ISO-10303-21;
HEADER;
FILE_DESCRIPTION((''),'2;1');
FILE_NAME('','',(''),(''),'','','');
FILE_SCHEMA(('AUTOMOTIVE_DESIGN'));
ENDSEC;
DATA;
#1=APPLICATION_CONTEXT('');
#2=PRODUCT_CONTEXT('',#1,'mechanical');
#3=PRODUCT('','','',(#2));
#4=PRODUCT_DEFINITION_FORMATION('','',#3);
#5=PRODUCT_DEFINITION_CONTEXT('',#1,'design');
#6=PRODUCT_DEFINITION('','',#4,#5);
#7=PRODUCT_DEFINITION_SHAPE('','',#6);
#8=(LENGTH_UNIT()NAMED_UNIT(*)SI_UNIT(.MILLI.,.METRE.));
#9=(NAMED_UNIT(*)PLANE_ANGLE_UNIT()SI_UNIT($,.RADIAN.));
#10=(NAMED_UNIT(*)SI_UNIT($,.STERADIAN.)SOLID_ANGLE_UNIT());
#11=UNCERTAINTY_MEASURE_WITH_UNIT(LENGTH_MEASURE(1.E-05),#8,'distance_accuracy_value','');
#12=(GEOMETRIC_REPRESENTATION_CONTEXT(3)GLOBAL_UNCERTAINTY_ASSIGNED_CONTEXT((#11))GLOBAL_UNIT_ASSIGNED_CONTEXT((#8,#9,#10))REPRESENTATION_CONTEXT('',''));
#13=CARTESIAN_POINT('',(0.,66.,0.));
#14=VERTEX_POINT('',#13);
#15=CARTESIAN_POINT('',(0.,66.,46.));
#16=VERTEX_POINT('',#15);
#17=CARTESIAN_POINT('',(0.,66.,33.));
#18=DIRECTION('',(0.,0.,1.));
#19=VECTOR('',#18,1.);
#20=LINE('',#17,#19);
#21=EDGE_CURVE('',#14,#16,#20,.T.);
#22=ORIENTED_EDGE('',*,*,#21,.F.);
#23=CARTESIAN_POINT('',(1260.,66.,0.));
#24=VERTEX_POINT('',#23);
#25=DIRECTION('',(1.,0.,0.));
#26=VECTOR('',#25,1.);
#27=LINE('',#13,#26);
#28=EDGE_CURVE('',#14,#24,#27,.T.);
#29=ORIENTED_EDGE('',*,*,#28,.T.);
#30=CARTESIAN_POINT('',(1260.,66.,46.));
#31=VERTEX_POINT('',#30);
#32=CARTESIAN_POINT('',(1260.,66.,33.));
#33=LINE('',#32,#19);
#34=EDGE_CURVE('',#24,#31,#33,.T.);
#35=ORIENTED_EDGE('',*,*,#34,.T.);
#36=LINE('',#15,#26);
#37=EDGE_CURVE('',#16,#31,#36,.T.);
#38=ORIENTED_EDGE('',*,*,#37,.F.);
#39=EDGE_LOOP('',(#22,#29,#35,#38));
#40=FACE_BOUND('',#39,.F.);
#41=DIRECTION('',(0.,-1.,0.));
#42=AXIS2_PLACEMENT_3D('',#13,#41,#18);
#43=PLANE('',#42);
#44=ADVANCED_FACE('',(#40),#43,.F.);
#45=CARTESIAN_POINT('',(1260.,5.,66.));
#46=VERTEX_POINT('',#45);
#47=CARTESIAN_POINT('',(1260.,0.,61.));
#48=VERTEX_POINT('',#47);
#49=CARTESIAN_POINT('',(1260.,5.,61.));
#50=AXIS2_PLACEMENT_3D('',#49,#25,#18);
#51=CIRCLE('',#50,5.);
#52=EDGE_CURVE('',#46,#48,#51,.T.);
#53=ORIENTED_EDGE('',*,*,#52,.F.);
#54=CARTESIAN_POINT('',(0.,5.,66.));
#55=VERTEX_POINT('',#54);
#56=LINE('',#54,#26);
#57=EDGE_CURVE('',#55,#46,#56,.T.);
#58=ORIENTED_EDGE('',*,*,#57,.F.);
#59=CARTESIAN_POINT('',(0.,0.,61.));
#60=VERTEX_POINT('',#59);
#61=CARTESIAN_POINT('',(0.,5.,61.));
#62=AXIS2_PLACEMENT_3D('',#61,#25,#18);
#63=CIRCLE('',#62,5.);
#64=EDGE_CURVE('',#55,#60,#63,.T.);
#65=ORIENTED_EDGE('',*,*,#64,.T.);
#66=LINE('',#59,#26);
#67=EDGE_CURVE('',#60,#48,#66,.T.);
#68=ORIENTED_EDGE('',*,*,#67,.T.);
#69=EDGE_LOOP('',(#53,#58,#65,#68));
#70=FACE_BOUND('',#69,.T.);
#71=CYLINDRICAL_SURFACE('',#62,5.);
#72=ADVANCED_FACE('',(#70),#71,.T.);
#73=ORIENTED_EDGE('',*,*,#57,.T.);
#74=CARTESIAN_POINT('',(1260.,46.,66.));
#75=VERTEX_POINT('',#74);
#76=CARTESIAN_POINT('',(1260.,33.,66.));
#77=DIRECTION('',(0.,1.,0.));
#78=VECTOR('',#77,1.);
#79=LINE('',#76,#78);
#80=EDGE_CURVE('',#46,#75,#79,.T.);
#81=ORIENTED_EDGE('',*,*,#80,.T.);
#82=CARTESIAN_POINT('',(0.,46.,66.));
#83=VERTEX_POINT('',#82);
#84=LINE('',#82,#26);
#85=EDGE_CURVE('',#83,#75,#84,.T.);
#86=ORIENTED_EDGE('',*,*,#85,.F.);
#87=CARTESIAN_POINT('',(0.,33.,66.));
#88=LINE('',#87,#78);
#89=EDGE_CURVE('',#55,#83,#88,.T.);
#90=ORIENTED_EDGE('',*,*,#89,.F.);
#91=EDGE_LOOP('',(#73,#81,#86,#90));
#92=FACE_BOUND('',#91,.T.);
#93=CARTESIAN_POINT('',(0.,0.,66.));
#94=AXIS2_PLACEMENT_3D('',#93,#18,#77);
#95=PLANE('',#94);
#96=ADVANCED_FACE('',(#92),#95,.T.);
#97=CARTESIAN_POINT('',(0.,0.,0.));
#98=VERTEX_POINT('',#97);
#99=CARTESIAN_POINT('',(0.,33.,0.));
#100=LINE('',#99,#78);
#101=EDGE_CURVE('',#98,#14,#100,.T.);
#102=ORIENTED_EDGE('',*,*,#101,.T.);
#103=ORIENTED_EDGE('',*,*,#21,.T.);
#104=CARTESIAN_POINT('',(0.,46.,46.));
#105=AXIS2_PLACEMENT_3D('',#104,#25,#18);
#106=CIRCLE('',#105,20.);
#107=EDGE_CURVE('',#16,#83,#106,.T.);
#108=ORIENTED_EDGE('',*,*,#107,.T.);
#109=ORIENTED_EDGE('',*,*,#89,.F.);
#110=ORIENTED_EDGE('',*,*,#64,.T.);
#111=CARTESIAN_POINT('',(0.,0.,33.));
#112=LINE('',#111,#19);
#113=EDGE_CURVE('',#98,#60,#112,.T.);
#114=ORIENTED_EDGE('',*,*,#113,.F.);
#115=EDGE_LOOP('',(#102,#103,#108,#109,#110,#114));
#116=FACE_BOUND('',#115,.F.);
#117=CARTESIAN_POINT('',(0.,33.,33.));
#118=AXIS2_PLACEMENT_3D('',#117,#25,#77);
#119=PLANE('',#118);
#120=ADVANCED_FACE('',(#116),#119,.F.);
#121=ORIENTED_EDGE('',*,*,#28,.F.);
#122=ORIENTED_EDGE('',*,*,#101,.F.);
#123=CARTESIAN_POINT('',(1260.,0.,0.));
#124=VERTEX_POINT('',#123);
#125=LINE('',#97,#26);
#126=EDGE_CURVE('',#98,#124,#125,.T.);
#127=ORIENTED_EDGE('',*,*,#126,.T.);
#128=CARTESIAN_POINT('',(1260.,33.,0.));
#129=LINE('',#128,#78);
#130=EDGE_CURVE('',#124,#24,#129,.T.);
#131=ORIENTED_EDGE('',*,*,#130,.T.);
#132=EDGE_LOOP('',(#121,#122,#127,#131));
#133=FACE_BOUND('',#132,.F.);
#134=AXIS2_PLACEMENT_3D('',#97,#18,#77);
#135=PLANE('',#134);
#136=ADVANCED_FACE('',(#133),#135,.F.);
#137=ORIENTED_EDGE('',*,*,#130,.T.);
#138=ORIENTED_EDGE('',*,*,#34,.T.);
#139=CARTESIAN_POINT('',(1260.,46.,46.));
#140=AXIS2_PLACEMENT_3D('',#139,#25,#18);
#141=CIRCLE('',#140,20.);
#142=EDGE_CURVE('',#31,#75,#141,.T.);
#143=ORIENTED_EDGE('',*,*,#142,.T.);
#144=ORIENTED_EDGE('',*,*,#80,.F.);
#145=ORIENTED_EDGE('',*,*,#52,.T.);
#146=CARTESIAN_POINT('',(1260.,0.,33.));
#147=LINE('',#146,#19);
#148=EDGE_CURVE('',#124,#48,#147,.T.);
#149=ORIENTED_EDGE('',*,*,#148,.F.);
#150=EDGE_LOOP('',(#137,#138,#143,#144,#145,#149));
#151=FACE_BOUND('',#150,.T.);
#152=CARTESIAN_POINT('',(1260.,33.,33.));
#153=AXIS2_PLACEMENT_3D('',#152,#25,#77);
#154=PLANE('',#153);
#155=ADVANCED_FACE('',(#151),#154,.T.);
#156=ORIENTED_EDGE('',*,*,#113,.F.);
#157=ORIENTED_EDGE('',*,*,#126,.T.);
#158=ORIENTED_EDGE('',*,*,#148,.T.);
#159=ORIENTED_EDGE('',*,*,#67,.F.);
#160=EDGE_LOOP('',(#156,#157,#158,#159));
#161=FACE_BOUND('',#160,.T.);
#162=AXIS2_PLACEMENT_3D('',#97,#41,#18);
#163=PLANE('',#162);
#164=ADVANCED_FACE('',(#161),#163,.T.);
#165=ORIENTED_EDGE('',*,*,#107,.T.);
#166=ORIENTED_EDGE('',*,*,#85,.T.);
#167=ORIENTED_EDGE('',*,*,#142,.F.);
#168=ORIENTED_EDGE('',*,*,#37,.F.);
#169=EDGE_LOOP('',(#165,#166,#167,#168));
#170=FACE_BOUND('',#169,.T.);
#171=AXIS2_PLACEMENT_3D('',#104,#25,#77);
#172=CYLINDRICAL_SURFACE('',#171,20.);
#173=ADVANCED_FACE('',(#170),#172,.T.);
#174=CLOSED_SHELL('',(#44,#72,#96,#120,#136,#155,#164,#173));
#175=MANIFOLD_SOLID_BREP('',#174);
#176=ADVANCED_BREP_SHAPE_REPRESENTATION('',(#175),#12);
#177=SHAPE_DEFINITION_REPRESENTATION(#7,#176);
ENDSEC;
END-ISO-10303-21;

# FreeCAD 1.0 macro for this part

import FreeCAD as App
import Part
import Sketcher


def edges_at(feature, points):
    """Names of the edges that pass closest to the given points."""
    edges = feature.Shape.Edges
    near = lambda p: min(range(len(edges)), key=lambda i: edges[i].distToShape(Part.Vertex(*p))[0])
    return sorted({f"Edge{near(p) + 1}" for p in points})

doc = App.newDocument("Part")
body = doc.addObject("PartDesign::Body", "Body")

# Sketch on YZ plane
sketch1 = body.newObject("Sketcher::SketchObject", "Sketch")
sketch1.AttachmentSupport = (doc.getObject("YZ_Plane"), [""])
sketch1.MapMode = "FlatFace"
sketch1.addGeometry([
    Part.LineSegment(App.Vector(0, 66, 0), App.Vector(0, 0, 0)),
    Part.LineSegment(App.Vector(0, 0, 0), App.Vector(66, 0, 0)),
    Part.LineSegment(App.Vector(66, 0, 0), App.Vector(66, 66, 0)),
    Part.LineSegment(App.Vector(66, 66, 0), App.Vector(0, 66, 0)),
], False)
sketch1.addConstraint([
    Sketcher.Constraint("Coincident", 0, 2, 1, 1),
    Sketcher.Constraint("Coincident", 1, 2, 2, 1),
    Sketcher.Constraint("Coincident", 2, 2, 3, 1),
    Sketcher.Constraint("Coincident", 3, 2, 0, 1),
    Sketcher.Constraint("Vertical", 0),
    Sketcher.Constraint("Horizontal", 1),
    Sketcher.Constraint("Vertical", 2),
    Sketcher.Constraint("Horizontal", 3),
    Sketcher.Constraint("Coincident", 0, 2, -1, 1),
    Sketcher.Constraint("Equal", 3, 0),
    Sketcher.Constraint("DistanceX", 1, 1, 1, 2, 66.0),
])
pad1 = body.newObject("PartDesign::Pad", "Pad")
pad1.Profile = sketch1
pad1.Length = 1260
doc.recompute()

fillet = body.newObject("PartDesign::Fillet", "Fillet")
fillet.Base = (pad1, edges_at(pad1, [(630, 66, 66)]))
fillet.Radius = 20
doc.recompute()

fillet2 = body.newObject("PartDesign::Fillet", "Fillet001")
fillet2.Base = (fillet, edges_at(fillet, [(630, 0, 66)]))
fillet2.Radius = 5

doc.recompute()
